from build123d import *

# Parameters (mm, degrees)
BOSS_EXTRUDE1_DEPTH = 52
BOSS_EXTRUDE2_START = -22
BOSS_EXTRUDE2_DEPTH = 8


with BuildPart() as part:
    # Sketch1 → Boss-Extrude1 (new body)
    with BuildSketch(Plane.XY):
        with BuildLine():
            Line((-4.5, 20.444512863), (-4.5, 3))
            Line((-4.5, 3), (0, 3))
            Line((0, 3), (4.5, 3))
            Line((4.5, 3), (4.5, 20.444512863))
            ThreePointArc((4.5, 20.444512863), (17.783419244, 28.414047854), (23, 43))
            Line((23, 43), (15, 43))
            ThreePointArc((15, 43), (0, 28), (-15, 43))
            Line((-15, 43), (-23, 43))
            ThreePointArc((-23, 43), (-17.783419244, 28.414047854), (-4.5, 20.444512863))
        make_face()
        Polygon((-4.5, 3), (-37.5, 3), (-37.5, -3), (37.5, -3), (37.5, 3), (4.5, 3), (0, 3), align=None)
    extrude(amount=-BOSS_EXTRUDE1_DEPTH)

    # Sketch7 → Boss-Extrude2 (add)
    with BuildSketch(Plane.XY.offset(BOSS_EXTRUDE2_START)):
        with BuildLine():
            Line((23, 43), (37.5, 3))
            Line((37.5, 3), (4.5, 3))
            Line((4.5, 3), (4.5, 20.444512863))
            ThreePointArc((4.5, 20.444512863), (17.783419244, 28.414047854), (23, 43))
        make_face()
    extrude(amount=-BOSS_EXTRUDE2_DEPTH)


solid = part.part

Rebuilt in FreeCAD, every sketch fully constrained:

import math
import FreeCAD as App
import Part
import Sketcher

doc = App.newDocument("Part")
params = doc.addObject("Spreadsheet::Sheet", "Params")
for row, (alias, value) in enumerate([
    ("sketch1_radius", "23 mm"),
    ("sketch1_radius2", "15 mm"),
    ("sketch1_width", "33 mm"),
    ("sketch1_width2", "75 mm"),
    ("sketch1_height", "6 mm"),
    ("pad1_length", "52 mm"),
    ("sketch2_radius", "23 mm"),
    ("sketch2_width", "33 mm"),
    ("pad2_length", "8 mm"),
], start=1):
    params.set(f"A{row}", alias)
    params.set(f"B{row}", "=" + value)
    params.setAlias(f"B{row}", alias)

body = doc.addObject("PartDesign::Body", "Body")

# Sketch on XY plane
sketch1 = body.newObject("Sketcher::SketchObject", "Sketch")
sketch1.AttachmentSupport = (doc.getObject("XY_Plane"), [""])
sketch1.MapMode = "FlatFace"
sketch1.addGeometry([
    Part.LineSegment(App.Vector(-4, 20, 0), App.Vector(-4, 3, 0)),  # 0
    Part.LineSegment(App.Vector(-4, 3, 0), App.Vector(-38, 3, 0)),  # 1
    Part.LineSegment(App.Vector(-38, 3, 0), App.Vector(-38, -3, 0)),  # 2
    Part.LineSegment(App.Vector(-38, -3, 0), App.Vector(38, -3, 0)),  # 3
    Part.LineSegment(App.Vector(38, -3, 0), App.Vector(38, 3, 0)),  # 4
    Part.LineSegment(App.Vector(38, 3, 0), App.Vector(4, 3, 0)),  # 5
    Part.LineSegment(App.Vector(4, 3, 0), App.Vector(4, 20, 0)),  # 6
    Part.ArcOfCircle(Part.Circle(App.Vector(0, 43, 0), App.Vector(0, 0, 1), 23), math.radians(-79), math.radians(0)),  # 7
    Part.LineSegment(App.Vector(23, 43, 0), App.Vector(15, 43, 0)),  # 8
    Part.ArcOfCircle(Part.Circle(App.Vector(0, 43, 0), App.Vector(0, 0, 1), 15), math.radians(180), math.radians(360)),  # 9
    Part.LineSegment(App.Vector(-15, 43, 0), App.Vector(-23, 43, 0)),  # 10
    Part.ArcOfCircle(Part.Circle(App.Vector(0, 43, 0), App.Vector(0, 0, 1), 23), math.radians(180), math.radians(259)),  # 11
], False)
sketch1.addConstraint([
    Sketcher.Constraint("Coincident", 0, 2, 1, 1),
    Sketcher.Constraint("Coincident", 1, 2, 2, 1),
    Sketcher.Constraint("Coincident", 2, 2, 3, 1),
    Sketcher.Constraint("Coincident", 3, 2, 4, 1),
    Sketcher.Constraint("Coincident", 4, 2, 5, 1),
    Sketcher.Constraint("Coincident", 5, 2, 6, 1),
    Sketcher.Constraint("Coincident", 6, 2, 7, 1),
    Sketcher.Constraint("Coincident", 7, 2, 8, 1),
    Sketcher.Constraint("Coincident", 8, 2, 9, 2),
    Sketcher.Constraint("Coincident", 9, 1, 10, 1),
    Sketcher.Constraint("Coincident", 10, 2, 11, 1),
    Sketcher.Constraint("Coincident", 11, 2, 0, 1),
    Sketcher.Constraint("Vertical", 0),
    Sketcher.Constraint("Horizontal", 1),
    Sketcher.Constraint("Vertical", 2),
    Sketcher.Constraint("Horizontal", 3),
    Sketcher.Constraint("Vertical", 4),
    Sketcher.Constraint("Horizontal", 5),
    Sketcher.Constraint("Vertical", 6),
    Sketcher.Constraint("Horizontal", 8),
    Sketcher.Constraint("Horizontal", 10),
    Sketcher.Constraint("Coincident", 9, 3, 7, 3),
    Sketcher.Constraint("Coincident", 11, 3, 7, 3),
    Sketcher.Constraint("Equal", 7, 11),
    Sketcher.Constraint("Symmetric", 1, 2, 3, 2, -1, 1),
    Sketcher.Constraint("Symmetric", 0, 2, 5, 2, -2),
    Sketcher.Constraint("Symmetric", 8, 2, 9, 1, -2),
    Sketcher.Constraint("Horizontal", 11, 3, 7, 2),
    Sketcher.Constraint("Radius", 7, 23.0),
    Sketcher.Constraint("Radius", 9, 15.0),
    Sketcher.Constraint("DistanceX", 1, 2, 1, 1, 33.0),
    Sketcher.Constraint("DistanceX", 3, 1, 3, 2, 75.0),
    Sketcher.Constraint("DistanceY", 2, 2, 2, 1, 6.0),
    Sketcher.Constraint("DistanceY", -1, 1, 7, 3, 43.0),
])
sketch1.setExpression("Constraints[28]", "Params.sketch1_radius")
sketch1.setExpression("Constraints[29]", "Params.sketch1_radius2")
sketch1.setExpression("Constraints[30]", "Params.sketch1_width")
sketch1.setExpression("Constraints[31]", "Params.sketch1_width2")
sketch1.setExpression("Constraints[32]", "Params.sketch1_height")
pad1 = body.newObject("PartDesign::Pad", "Pad")
pad1.Profile = sketch1
pad1.setExpression("Length", "Params.pad1_length")
pad1.Reversed = True

# Sketch on XY plane
sketch2 = body.newObject("Sketcher::SketchObject", "Sketch001")
sketch2.AttachmentSupport = (doc.getObject("XY_Plane"), [""])
sketch2.MapMode = "FlatFace"
sketch2.AttachmentOffset = App.Placement(App.Vector(0, 0, -22), App.Rotation())
sketch2.addGeometry([
    Part.LineSegment(App.Vector(38, 3, 0), App.Vector(23, 43, 0)),
    Part.ArcOfCircle(Part.Circle(App.Vector(0, 43, 0), App.Vector(0, 0, 1), 23), math.radians(-79), math.radians(0)),
    Part.LineSegment(App.Vector(4, 20, 0), App.Vector(4, 3, 0)),
    Part.LineSegment(App.Vector(4, 3, 0), App.Vector(38, 3, 0)),
], False)
sketch2.addConstraint([
    Sketcher.Constraint("Coincident", 0, 2, 1, 2),
    Sketcher.Constraint("Coincident", 1, 1, 2, 1),
    Sketcher.Constraint("Coincident", 2, 2, 3, 1),
    Sketcher.Constraint("Coincident", 3, 2, 0, 1),
    Sketcher.Constraint("Vertical", 2),
    Sketcher.Constraint("Horizontal", 3),
    Sketcher.Constraint("PointOnObject", 1, 3, -2),
    Sketcher.Constraint("Horizontal", 1, 3, 0, 2),
    Sketcher.Constraint("Radius", 1, 23.0),
    Sketcher.Constraint("DistanceX", 3, 1, 3, 2, 33.0),
    Sketcher.Constraint("DistanceY", -1, 1, 1, 3, 43.0),
    Sketcher.Constraint("DistanceY", -1, 1, 2, 2, 3.0),
    Sketcher.Constraint("DistanceX", -1, 1, 1, 1, 4.5),
])
sketch2.setExpression("Constraints[8]", "Params.sketch2_radius")
sketch2.setExpression("Constraints[9]", "Params.sketch2_width")
pad2 = body.newObject("PartDesign::Pad", "Pad001")
pad2.Profile = sketch2
pad2.setExpression("Length", "Params.pad2_length")
pad2.Reversed = True

doc.recompute()
